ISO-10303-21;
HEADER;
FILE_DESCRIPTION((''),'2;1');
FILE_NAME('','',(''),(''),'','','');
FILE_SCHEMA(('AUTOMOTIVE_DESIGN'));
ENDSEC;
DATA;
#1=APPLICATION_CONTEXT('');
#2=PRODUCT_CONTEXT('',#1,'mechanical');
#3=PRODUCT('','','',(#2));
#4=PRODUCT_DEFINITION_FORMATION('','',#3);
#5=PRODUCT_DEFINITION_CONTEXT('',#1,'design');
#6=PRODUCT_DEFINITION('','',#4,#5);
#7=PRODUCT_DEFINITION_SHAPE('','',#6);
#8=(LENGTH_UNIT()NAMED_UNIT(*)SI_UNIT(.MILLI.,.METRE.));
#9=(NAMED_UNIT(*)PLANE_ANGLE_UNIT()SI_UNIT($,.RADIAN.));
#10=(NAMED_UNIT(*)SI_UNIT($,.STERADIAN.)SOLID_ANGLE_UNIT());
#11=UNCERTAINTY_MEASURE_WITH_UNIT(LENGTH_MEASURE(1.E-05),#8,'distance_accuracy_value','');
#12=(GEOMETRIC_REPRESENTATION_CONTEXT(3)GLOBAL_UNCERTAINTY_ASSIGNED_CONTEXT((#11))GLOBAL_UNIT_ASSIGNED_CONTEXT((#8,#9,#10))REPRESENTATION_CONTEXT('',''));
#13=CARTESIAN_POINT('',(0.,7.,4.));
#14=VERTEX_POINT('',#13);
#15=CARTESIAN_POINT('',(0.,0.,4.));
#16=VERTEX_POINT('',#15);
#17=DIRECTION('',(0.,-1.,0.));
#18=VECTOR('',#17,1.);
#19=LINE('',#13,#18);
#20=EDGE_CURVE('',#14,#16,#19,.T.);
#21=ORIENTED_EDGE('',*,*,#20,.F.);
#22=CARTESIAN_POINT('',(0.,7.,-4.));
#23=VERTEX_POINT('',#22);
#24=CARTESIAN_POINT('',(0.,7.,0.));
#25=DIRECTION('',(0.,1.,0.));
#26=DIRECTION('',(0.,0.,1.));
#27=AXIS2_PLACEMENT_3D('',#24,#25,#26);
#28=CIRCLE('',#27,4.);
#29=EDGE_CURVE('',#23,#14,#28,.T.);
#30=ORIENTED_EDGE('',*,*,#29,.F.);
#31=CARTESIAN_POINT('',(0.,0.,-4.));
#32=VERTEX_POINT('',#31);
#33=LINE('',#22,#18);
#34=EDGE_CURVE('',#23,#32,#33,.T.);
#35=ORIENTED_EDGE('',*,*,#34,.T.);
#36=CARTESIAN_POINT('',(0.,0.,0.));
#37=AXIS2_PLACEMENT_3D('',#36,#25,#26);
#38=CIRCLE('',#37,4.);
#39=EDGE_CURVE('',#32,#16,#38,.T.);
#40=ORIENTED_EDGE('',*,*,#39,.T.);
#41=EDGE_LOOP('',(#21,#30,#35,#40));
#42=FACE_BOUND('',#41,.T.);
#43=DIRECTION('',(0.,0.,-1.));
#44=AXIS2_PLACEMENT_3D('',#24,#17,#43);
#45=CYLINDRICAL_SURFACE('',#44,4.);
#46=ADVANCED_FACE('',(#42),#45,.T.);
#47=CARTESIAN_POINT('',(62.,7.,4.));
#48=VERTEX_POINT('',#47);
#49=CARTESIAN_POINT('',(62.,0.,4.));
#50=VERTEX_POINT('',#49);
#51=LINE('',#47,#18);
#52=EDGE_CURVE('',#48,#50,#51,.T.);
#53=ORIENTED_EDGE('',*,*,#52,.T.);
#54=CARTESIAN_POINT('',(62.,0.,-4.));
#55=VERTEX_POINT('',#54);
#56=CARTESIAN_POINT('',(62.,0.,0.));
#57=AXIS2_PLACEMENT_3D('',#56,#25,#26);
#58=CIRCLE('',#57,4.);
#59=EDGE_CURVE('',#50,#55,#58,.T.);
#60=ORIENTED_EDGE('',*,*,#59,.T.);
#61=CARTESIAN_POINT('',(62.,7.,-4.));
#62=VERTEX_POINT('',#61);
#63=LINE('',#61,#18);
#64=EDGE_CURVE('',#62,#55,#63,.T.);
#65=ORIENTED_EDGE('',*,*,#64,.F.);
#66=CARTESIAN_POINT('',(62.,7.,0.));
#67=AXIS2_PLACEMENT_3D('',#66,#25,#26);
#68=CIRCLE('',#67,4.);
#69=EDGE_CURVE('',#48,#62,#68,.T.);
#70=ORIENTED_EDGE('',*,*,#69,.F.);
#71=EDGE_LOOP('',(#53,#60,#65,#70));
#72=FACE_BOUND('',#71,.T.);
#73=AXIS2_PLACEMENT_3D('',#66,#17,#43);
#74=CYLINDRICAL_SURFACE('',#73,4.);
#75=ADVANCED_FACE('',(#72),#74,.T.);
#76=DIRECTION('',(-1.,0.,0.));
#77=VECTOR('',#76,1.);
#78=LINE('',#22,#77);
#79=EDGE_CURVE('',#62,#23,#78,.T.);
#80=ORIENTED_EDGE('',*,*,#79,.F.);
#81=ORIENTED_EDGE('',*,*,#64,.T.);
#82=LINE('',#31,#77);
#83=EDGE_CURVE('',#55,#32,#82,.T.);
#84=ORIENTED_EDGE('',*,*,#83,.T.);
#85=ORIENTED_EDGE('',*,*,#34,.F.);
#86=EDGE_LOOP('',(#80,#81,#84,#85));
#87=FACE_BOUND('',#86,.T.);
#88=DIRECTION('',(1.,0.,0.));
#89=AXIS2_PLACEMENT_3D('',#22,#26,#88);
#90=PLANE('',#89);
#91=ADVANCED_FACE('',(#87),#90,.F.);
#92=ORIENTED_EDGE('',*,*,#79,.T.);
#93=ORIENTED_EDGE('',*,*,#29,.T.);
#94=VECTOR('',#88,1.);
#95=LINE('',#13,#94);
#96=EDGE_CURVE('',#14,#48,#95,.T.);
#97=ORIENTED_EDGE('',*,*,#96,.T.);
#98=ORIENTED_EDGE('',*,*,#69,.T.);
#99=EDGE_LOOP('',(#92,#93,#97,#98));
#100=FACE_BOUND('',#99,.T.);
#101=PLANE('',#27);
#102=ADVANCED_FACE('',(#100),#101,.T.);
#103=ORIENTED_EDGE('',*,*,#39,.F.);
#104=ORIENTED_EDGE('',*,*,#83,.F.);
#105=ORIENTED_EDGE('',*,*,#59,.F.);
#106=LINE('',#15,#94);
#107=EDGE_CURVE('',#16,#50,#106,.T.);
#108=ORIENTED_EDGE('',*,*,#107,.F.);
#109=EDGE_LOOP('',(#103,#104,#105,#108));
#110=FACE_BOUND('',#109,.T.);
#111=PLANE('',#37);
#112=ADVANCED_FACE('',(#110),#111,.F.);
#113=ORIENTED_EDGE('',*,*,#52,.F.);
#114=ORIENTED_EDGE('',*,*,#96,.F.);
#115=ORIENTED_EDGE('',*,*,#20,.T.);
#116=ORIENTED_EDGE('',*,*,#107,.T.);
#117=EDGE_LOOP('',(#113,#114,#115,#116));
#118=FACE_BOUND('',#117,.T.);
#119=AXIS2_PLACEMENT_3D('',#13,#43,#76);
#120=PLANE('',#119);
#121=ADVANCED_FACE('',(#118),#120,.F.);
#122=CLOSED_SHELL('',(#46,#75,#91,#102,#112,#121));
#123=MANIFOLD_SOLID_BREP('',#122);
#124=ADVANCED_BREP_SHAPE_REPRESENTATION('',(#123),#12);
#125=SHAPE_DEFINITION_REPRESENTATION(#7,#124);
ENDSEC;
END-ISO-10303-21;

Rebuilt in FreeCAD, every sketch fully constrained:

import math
import FreeCAD as App
import Part
import Sketcher
from FreeCAD import Vector
Q = App.Units.Quantity

doc = App.newDocument("Part")
body = doc.addObject("PartDesign::Body", "Body")

sketch1 = body.newObject("Sketcher::SketchObject", "Sketch")
sketch1.AttachmentSupport = (doc.getObject("XZ_Plane"), [""])
sketch1.MapMode = "FlatFace"
sketch1.addGeometry([
    Part.LineSegment(Vector(62, -4, 0), Vector(0, -4, 0)),
    Part.ArcOfCircle(Part.Circle(Vector(0, 0, 0), Vector(0, 0, 1), 4), math.radians(90), math.radians(270)),
    Part.LineSegment(Vector(0, 4, 0), Vector(62, 4, 0)),
    Part.ArcOfCircle(Part.Circle(Vector(62, 0, 0), Vector(0, 0, 1), 4), math.radians(-90), math.radians(90)),
], False)
sketch1.addConstraint([
    Sketcher.Constraint("Tangent", 0, 2, 1, 2),
    Sketcher.Constraint("Tangent", 1, 1, 2, 1),
    Sketcher.Constraint("Tangent", 2, 2, 3, 2),
    Sketcher.Constraint("Tangent", 3, 1, 0, 1),
    Sketcher.Constraint("Horizontal", 0),
    Sketcher.Constraint("Horizontal", 2),
    Sketcher.Constraint("Coincident", 1, 3, -1, 1),
    Sketcher.Constraint("Radius", 1, Q("4 mm")),
    Sketcher.Constraint("DistanceX", 0, 2, 0, 1, Q("62 mm")),
])
pad1 = body.newObject("PartDesign::Pad", "Pad")
pad1.Profile = sketch1
pad1.Length = 7
pad1.Reversed = True

doc.recompute()
